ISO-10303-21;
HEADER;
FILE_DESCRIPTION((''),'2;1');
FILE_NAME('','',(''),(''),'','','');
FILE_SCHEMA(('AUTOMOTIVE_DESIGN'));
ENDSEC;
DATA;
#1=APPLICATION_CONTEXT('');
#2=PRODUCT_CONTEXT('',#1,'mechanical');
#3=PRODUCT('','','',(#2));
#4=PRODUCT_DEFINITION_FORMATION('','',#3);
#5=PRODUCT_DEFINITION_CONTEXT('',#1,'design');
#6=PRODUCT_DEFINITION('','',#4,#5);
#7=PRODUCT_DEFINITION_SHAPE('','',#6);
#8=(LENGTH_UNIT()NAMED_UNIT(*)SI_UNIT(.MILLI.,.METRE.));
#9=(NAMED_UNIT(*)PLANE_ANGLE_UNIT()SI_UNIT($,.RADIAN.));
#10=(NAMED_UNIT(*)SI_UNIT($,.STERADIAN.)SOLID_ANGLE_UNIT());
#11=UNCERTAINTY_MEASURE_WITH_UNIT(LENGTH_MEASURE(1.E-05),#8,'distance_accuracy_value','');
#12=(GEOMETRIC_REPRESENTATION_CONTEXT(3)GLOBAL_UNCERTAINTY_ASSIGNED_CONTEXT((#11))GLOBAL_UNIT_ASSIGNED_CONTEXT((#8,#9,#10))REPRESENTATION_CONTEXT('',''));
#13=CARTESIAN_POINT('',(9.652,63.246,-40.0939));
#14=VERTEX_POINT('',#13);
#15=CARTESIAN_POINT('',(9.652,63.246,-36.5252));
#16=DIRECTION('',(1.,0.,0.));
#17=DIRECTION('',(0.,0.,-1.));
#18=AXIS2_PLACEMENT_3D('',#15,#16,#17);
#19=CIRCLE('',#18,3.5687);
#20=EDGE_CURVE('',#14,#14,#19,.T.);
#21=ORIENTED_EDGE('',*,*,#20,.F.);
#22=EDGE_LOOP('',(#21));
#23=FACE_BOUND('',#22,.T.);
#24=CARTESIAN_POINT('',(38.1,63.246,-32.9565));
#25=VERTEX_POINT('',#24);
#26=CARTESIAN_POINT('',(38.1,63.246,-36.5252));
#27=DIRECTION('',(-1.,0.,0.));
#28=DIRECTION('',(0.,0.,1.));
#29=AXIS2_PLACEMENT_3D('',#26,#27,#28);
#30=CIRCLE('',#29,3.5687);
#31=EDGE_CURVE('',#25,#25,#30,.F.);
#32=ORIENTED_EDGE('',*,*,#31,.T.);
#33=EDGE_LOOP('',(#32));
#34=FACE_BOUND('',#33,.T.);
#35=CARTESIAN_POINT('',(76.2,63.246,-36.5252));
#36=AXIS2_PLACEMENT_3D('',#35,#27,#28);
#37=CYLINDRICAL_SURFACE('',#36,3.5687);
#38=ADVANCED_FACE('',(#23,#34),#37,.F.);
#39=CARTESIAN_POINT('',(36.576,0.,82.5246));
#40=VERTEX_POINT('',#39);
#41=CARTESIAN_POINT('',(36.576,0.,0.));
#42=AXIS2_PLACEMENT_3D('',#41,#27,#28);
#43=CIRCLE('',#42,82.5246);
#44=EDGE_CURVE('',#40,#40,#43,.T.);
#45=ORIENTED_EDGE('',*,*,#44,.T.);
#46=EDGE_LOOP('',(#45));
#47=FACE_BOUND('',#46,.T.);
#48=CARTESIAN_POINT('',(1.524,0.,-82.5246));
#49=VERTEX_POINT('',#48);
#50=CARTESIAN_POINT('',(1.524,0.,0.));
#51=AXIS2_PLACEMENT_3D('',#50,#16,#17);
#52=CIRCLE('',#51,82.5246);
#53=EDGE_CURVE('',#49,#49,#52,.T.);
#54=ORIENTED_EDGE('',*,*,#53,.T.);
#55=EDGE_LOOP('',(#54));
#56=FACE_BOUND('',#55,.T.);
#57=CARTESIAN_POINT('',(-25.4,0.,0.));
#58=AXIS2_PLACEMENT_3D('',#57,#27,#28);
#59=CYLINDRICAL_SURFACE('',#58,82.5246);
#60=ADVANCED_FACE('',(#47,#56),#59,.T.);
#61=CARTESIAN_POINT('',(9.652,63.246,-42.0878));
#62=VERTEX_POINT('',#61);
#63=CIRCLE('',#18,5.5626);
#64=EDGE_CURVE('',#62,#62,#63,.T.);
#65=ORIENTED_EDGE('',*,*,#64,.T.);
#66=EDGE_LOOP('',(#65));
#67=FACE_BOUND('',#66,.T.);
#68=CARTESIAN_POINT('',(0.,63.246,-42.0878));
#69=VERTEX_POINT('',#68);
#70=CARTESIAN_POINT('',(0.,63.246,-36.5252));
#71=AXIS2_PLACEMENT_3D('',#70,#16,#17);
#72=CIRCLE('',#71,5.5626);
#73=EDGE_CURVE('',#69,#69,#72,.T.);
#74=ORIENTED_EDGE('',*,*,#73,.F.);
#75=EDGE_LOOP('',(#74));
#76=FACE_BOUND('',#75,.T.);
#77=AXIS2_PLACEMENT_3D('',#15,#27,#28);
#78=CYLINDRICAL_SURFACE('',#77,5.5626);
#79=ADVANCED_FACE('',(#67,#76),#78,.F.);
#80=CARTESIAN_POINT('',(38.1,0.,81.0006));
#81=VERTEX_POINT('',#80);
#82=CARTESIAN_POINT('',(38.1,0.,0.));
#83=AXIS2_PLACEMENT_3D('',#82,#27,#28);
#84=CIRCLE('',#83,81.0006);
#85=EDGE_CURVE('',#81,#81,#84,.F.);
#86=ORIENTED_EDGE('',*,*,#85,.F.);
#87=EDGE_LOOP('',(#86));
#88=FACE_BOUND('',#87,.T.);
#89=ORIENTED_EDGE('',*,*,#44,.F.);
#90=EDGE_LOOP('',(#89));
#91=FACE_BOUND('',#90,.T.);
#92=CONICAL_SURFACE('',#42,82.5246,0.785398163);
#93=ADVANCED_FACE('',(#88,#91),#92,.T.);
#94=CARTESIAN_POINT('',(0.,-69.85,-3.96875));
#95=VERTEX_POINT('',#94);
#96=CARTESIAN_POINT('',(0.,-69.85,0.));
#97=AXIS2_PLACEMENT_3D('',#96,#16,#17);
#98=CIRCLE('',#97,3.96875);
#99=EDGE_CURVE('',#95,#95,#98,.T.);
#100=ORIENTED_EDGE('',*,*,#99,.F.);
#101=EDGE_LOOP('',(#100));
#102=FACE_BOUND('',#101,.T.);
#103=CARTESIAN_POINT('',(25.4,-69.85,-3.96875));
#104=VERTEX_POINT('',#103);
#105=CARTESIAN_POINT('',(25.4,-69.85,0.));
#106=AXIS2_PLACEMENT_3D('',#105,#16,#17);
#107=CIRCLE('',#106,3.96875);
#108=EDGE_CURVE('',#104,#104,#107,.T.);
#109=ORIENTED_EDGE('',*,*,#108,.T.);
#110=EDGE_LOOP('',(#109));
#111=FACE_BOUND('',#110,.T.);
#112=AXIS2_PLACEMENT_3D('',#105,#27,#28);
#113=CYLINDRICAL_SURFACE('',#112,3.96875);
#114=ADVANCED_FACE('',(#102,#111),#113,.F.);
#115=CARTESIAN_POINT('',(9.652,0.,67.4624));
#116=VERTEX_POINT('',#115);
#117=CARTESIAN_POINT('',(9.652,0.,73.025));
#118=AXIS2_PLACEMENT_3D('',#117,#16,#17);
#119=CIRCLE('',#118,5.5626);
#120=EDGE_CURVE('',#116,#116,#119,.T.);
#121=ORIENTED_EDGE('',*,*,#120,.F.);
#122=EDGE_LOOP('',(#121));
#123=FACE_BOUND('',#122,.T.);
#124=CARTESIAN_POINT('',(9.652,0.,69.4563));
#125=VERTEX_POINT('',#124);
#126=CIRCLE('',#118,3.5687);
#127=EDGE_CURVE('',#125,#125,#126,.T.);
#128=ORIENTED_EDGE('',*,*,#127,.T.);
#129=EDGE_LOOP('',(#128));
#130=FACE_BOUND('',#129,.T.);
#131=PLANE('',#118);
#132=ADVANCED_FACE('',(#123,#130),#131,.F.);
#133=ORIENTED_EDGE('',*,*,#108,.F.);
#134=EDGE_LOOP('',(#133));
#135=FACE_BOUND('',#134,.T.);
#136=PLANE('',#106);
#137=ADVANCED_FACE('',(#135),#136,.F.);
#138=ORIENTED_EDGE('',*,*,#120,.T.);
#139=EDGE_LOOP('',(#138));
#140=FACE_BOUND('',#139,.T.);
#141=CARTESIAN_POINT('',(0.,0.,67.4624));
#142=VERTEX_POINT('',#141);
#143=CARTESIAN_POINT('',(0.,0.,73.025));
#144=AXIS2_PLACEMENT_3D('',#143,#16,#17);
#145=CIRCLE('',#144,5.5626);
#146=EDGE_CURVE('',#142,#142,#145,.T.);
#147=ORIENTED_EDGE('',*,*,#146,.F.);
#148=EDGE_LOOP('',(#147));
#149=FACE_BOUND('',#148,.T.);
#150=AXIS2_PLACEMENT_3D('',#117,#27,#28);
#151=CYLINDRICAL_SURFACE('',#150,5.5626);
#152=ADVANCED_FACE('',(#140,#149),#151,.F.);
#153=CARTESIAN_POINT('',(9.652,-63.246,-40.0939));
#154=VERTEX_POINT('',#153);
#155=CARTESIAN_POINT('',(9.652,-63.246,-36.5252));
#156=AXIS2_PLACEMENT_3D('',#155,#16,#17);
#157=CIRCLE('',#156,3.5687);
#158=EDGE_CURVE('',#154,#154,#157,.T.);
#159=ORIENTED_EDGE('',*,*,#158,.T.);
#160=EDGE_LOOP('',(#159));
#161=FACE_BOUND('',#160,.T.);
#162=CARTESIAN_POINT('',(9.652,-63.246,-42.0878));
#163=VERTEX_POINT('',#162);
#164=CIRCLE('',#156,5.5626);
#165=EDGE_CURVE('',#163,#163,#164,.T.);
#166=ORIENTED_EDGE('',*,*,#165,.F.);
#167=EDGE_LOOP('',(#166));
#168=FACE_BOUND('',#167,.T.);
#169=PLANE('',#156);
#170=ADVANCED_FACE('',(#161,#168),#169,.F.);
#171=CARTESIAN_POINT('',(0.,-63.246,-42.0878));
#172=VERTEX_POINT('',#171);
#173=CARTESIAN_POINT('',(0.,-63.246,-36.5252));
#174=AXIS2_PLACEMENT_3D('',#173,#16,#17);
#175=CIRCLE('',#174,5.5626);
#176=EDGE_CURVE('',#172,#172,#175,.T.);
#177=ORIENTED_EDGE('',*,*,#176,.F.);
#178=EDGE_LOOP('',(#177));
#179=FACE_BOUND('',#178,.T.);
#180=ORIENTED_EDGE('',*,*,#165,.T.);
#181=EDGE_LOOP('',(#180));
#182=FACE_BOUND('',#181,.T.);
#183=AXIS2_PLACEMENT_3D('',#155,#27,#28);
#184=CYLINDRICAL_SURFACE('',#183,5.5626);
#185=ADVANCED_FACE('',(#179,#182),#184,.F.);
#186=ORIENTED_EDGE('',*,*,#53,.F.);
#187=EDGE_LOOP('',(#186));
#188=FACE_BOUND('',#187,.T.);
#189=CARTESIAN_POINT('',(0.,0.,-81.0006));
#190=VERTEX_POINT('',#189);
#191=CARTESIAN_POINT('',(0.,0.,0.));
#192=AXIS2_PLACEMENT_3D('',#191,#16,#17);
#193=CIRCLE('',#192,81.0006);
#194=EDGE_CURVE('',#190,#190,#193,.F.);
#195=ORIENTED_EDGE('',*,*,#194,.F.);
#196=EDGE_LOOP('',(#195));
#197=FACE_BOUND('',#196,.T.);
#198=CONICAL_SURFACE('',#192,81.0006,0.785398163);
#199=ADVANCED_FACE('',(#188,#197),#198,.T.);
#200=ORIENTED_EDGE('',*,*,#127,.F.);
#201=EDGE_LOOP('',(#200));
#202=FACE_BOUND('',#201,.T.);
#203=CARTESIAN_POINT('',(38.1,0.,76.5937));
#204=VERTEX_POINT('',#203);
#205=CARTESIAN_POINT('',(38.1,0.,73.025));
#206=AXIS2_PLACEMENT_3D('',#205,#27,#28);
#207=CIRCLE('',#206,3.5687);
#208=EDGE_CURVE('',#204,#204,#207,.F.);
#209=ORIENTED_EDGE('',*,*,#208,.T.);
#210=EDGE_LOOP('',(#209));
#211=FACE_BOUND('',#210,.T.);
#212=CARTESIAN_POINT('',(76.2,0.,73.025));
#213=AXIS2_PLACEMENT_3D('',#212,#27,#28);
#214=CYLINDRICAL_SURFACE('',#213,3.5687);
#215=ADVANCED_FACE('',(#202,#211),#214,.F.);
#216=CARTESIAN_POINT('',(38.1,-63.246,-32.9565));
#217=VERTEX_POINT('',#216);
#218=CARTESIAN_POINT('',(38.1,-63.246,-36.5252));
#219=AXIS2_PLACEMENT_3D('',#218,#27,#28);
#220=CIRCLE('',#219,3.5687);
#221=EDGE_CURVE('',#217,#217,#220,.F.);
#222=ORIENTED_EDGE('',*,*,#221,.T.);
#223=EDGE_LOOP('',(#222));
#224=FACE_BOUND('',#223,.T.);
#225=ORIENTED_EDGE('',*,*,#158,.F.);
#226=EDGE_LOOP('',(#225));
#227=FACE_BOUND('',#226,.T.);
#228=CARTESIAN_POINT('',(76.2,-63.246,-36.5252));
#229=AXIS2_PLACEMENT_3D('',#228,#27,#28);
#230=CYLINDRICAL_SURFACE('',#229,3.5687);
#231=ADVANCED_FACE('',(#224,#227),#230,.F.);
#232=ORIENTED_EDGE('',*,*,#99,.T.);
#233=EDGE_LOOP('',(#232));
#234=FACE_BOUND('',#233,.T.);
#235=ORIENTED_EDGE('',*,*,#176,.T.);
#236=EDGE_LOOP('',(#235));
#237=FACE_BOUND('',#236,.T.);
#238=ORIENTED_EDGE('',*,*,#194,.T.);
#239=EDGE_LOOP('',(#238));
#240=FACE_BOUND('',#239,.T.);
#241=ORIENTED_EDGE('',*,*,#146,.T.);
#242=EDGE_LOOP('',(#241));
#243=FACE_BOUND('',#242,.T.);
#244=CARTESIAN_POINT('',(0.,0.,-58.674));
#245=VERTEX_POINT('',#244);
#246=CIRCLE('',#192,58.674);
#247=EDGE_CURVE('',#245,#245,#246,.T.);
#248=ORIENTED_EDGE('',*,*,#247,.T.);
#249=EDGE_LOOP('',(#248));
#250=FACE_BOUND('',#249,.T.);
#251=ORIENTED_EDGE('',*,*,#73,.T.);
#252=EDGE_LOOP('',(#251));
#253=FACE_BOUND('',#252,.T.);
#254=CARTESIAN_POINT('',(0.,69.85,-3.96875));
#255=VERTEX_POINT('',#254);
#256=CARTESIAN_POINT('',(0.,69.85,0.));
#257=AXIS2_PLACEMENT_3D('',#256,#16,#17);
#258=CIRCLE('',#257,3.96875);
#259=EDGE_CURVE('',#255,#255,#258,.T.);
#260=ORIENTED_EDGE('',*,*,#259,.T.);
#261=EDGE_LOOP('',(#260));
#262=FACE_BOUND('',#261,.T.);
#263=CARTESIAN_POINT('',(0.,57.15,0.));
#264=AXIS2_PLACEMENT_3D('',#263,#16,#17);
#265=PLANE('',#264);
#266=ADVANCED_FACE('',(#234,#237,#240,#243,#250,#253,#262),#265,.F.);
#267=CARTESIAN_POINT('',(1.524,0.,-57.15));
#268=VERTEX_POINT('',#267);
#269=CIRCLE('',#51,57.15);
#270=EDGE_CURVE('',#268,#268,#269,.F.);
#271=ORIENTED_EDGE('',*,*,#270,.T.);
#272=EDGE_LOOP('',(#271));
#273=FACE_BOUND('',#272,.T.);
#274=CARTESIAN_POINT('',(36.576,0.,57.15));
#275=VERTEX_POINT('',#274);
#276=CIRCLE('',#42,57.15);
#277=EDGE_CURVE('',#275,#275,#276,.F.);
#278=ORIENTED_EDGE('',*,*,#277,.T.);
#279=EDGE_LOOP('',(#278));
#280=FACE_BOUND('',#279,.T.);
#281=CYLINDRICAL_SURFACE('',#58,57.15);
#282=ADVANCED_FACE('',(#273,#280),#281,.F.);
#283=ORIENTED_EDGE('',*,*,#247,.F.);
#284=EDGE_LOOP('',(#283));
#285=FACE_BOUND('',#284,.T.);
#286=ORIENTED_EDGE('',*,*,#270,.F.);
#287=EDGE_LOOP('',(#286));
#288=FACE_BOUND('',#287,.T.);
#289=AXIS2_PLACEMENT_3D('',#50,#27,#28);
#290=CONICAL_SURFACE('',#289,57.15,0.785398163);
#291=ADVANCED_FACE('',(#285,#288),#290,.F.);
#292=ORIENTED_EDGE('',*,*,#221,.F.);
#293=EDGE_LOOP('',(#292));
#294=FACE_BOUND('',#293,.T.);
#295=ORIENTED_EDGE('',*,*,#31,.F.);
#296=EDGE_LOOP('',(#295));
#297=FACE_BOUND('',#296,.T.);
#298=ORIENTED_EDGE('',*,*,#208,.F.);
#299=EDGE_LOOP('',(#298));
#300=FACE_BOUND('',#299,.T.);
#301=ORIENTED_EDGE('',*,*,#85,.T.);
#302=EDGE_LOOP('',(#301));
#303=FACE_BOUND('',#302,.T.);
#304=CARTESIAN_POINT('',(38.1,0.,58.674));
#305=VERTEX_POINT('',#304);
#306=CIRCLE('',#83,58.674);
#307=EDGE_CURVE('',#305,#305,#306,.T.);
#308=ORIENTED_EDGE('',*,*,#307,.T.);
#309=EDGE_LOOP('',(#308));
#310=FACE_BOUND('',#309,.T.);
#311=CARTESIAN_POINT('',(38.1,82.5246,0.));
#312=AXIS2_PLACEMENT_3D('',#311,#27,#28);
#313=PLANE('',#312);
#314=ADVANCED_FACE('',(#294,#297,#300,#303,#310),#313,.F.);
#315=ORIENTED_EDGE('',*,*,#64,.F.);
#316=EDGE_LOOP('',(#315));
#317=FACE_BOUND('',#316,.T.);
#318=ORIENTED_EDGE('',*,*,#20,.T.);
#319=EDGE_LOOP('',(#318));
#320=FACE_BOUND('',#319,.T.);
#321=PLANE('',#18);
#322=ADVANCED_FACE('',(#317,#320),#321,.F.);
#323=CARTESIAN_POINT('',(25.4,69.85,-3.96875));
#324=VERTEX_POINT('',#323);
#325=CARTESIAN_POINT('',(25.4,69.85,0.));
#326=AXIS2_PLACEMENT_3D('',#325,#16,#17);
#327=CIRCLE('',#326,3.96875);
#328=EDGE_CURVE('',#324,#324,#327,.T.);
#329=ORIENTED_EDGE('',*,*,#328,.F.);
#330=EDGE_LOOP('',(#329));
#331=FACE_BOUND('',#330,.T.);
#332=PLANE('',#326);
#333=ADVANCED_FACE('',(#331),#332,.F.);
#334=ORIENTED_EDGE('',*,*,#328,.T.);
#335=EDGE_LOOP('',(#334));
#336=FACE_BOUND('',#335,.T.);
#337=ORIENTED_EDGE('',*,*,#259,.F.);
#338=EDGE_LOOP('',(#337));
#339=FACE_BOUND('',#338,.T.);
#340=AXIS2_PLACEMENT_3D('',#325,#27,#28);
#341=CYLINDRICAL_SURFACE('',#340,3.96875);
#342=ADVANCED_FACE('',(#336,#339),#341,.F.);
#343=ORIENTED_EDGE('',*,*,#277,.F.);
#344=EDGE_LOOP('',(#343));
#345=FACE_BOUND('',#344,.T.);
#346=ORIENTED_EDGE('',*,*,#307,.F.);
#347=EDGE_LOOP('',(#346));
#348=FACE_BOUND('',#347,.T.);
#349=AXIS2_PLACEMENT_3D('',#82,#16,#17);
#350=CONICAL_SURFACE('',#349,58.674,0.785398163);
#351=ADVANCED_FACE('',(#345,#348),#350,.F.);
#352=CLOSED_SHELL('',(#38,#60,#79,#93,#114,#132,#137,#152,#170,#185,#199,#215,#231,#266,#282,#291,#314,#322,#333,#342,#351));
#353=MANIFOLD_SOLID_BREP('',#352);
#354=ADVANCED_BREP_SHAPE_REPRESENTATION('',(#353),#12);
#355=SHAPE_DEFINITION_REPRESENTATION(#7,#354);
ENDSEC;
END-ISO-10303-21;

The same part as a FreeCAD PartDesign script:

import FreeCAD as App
import Part
import Sketcher
Q = App.Units.Quantity


def edges_at(feature, points):
    """Names of the edges that pass closest to the given points."""
    edges = feature.Shape.Edges
    near = lambda p: min(range(len(edges)), key=lambda i: edges[i].distToShape(Part.Vertex(*p))[0])
    return sorted({f"Edge{near(p) + 1}" for p in points})


def add_polygon(sketch, points):
    """Adds a closed chain of lines whose ends are joined by coincident constraints."""
    first, n = sketch.GeometryCount, len(points)
    for a, b in zip(points, points[1:] + points[:1]):
        sketch.addGeometry(Part.LineSegment(App.Vector(*a, 0), App.Vector(*b, 0)), False)
    for i in range(n):
        sketch.addConstraint(Sketcher.Constraint("Coincident", first + i, 2, first + (i + 1) % n, 1))

doc = App.newDocument("Part")
body = doc.addObject("PartDesign::Body", "Body")

sketch1 = body.newObject("Sketcher::SketchObject", "Sketch")
sketch1.AttachmentSupport = (doc.getObject("XY_Plane"), [""])
sketch1.MapMode = "FlatFace"
add_polygon(sketch1, [(0, 57.15), (38.1, 57.15), (38.1, 82.5246), (0, 82.5246)])
sketch1.addConstraint([
    Sketcher.Constraint("Horizontal", 0),
    Sketcher.Constraint("Vertical", 1),
    Sketcher.Constraint("Horizontal", 2),
    Sketcher.Constraint("Vertical", 3),
    Sketcher.Constraint("PointOnObject", 2, 2, -2),
    Sketcher.Constraint("DistanceX", 0, 1, 0, 2, Q("1.5 in")),
    Sketcher.Constraint("DistanceY", 1, 1, 1, 2, Q("0.999 in")),
    Sketcher.Constraint("DistanceY", -1, 1, 0, 2, Q("2.25 in")),
])
revolution = body.newObject("PartDesign::Revolution", "Revolution")
revolution.Profile = sketch1
revolution.ReferenceAxis = (sketch1, ["H_Axis"])
revolution.Angle = 360
doc.recompute()

chamfer = body.newObject("PartDesign::Chamfer", "Chamfer")
chamfer.Base = (revolution, edges_at(revolution, [
    (0, 0, -57.15),
    (38.1, 0, -57.15),
    (38.1, 0, -82.525),
    (0, 0, -82.525),
]))
chamfer.Size = Q("0.06 in")

sketch2 = body.newObject("Sketcher::SketchObject", "Sketch001")
sketch2.AttachmentSupport = (doc.getObject("YZ_Plane"), [""])
sketch2.MapMode = "FlatFace"
sketch2.addGeometry(Part.Circle(App.Vector(0, 73.025, 0), App.Vector(0, 0, 1), 3.5687), False)
sketch2.addConstraint([
    Sketcher.Constraint("PointOnObject", 0, 3, -2),
    Sketcher.Constraint("Diameter", 0, Q("0.281 in")),
    Sketcher.Constraint("DistanceY", -1, 1, 0, 3, Q("2.875 in")),
])
pocket1 = body.newObject("PartDesign::Pocket", "Pocket")
pocket1.Profile = sketch2
pocket1.Length = Q("3 in")
pocket1.Reversed = True

sketch3 = body.newObject("Sketcher::SketchObject", "Sketch002")
sketch3.AttachmentSupport = (doc.getObject("YZ_Plane"), [""])
sketch3.MapMode = "FlatFace"
sketch3.addGeometry(Part.Circle(App.Vector(0, 73.025, 0), App.Vector(0, 0, 1), 5.5626), False)
sketch3.addConstraint([
    Sketcher.Constraint("PointOnObject", 0, 3, -2),
    Sketcher.Constraint("Diameter", 0, Q("0.438 in")),
    Sketcher.Constraint("DistanceY", -1, 1, 0, 3, Q("2.875 in")),
])
pocket2 = body.newObject("PartDesign::Pocket", "Pocket001")
pocket2.Profile = sketch3
pocket2.Length = Q("0.38 in")
pocket2.Reversed = True

sketch4 = body.newObject("Sketcher::SketchObject", "Sketch003")
sketch4.AttachmentSupport = (doc.getObject("YZ_Plane"), [""])
sketch4.MapMode = "FlatFace"
sketch4.addGeometry(Part.Circle(App.Vector(-63.246, -36.5252, 0), App.Vector(0, 0, 1), 3.5687), False)
sketch4.addConstraint([
    Sketcher.Constraint("Diameter", 0, Q("0.281 in")),
    Sketcher.Constraint("DistanceX", 0, 3, -1, 1, Q("2.49 in")),
    Sketcher.Constraint("DistanceY", 0, 3, -1, 1, Q("1.438 in")),
])
pocket3 = body.newObject("PartDesign::Pocket", "Pocket002")
pocket3.Profile = sketch4
pocket3.Length = Q("3 in")
pocket3.Reversed = True

sketch5 = body.newObject("Sketcher::SketchObject", "Sketch004")
sketch5.AttachmentSupport = (doc.getObject("YZ_Plane"), [""])
sketch5.MapMode = "FlatFace"
sketch5.addGeometry(Part.Circle(App.Vector(-63.246, -36.5252, 0), App.Vector(0, 0, 1), 5.5626), False)
sketch5.addConstraint([
    Sketcher.Constraint("Diameter", 0, Q("0.438 in")),
    Sketcher.Constraint("DistanceX", 0, 3, -1, 1, Q("2.49 in")),
    Sketcher.Constraint("DistanceY", 0, 3, -1, 1, Q("1.438 in")),
])
pocket4 = body.newObject("PartDesign::Pocket", "Pocket003")
pocket4.Profile = sketch5
pocket4.Length = Q("0.38 in")
pocket4.Reversed = True

sketch6 = body.newObject("Sketcher::SketchObject", "Sketch005")
sketch6.AttachmentSupport = (doc.getObject("YZ_Plane"), [""])
sketch6.MapMode = "FlatFace"
sketch6.addGeometry(Part.Circle(App.Vector(63.246, -36.5252, 0), App.Vector(0, 0, 1), 3.5687), False)
sketch6.addConstraint([
    Sketcher.Constraint("Diameter", 0, Q("0.281 in")),
    Sketcher.Constraint("DistanceX", -1, 1, 0, 3, Q("2.49 in")),
    Sketcher.Constraint("DistanceY", 0, 3, -1, 1, Q("1.438 in")),
])
pocket5 = body.newObject("PartDesign::Pocket", "Pocket004")
pocket5.Profile = sketch6
pocket5.Length = Q("3 in")
pocket5.Reversed = True

sketch7 = body.newObject("Sketcher::SketchObject", "Sketch006")
sketch7.AttachmentSupport = (doc.getObject("YZ_Plane"), [""])
sketch7.MapMode = "FlatFace"
sketch7.addGeometry(Part.Circle(App.Vector(63.246, -36.5252, 0), App.Vector(0, 0, 1), 5.5626), False)
sketch7.addConstraint([
    Sketcher.Constraint("Diameter", 0, Q("0.438 in")),
    Sketcher.Constraint("DistanceX", -1, 1, 0, 3, Q("2.49 in")),
    Sketcher.Constraint("DistanceY", 0, 3, -1, 1, Q("1.438 in")),
])
pocket6 = body.newObject("PartDesign::Pocket", "Pocket005")
pocket6.Profile = sketch7
pocket6.Length = Q("0.38 in")
pocket6.Reversed = True

sketch8 = body.newObject("Sketcher::SketchObject", "Sketch007")
sketch8.AttachmentSupport = (doc.getObject("YZ_Plane"), [""])
sketch8.MapMode = "FlatFace"
sketch8.addGeometry(Part.Circle(App.Vector(-69.85, 0, 0), App.Vector(0, 0, 1), 3.96875), False)
sketch8.addConstraint([
    Sketcher.Constraint("PointOnObject", 0, 3, -1),
    Sketcher.Constraint("Diameter", 0, Q("0.3125 in")),
    Sketcher.Constraint("DistanceX", 0, 3, -1, 1, Q("2.75 in")),
])
pocket7 = body.newObject("PartDesign::Pocket", "Pocket006")
pocket7.Profile = sketch8
pocket7.Length = Q("1 in")
pocket7.Reversed = True

sketch9 = body.newObject("Sketcher::SketchObject", "Sketch008")
sketch9.AttachmentSupport = (doc.getObject("YZ_Plane"), [""])
sketch9.MapMode = "FlatFace"
sketch9.addGeometry(Part.Circle(App.Vector(69.85, 0, 0), App.Vector(0, 0, 1), 3.96875), False)
sketch9.addConstraint([
    Sketcher.Constraint("PointOnObject", 0, 3, -1),
    Sketcher.Constraint("Diameter", 0, Q("0.3125 in")),
    Sketcher.Constraint("DistanceX", -1, 1, 0, 3, Q("2.75 in")),
])
pocket8 = body.newObject("PartDesign::Pocket", "Pocket007")
pocket8.Profile = sketch9
pocket8.Length = Q("1 in")
pocket8.Reversed = True

doc.recompute()
